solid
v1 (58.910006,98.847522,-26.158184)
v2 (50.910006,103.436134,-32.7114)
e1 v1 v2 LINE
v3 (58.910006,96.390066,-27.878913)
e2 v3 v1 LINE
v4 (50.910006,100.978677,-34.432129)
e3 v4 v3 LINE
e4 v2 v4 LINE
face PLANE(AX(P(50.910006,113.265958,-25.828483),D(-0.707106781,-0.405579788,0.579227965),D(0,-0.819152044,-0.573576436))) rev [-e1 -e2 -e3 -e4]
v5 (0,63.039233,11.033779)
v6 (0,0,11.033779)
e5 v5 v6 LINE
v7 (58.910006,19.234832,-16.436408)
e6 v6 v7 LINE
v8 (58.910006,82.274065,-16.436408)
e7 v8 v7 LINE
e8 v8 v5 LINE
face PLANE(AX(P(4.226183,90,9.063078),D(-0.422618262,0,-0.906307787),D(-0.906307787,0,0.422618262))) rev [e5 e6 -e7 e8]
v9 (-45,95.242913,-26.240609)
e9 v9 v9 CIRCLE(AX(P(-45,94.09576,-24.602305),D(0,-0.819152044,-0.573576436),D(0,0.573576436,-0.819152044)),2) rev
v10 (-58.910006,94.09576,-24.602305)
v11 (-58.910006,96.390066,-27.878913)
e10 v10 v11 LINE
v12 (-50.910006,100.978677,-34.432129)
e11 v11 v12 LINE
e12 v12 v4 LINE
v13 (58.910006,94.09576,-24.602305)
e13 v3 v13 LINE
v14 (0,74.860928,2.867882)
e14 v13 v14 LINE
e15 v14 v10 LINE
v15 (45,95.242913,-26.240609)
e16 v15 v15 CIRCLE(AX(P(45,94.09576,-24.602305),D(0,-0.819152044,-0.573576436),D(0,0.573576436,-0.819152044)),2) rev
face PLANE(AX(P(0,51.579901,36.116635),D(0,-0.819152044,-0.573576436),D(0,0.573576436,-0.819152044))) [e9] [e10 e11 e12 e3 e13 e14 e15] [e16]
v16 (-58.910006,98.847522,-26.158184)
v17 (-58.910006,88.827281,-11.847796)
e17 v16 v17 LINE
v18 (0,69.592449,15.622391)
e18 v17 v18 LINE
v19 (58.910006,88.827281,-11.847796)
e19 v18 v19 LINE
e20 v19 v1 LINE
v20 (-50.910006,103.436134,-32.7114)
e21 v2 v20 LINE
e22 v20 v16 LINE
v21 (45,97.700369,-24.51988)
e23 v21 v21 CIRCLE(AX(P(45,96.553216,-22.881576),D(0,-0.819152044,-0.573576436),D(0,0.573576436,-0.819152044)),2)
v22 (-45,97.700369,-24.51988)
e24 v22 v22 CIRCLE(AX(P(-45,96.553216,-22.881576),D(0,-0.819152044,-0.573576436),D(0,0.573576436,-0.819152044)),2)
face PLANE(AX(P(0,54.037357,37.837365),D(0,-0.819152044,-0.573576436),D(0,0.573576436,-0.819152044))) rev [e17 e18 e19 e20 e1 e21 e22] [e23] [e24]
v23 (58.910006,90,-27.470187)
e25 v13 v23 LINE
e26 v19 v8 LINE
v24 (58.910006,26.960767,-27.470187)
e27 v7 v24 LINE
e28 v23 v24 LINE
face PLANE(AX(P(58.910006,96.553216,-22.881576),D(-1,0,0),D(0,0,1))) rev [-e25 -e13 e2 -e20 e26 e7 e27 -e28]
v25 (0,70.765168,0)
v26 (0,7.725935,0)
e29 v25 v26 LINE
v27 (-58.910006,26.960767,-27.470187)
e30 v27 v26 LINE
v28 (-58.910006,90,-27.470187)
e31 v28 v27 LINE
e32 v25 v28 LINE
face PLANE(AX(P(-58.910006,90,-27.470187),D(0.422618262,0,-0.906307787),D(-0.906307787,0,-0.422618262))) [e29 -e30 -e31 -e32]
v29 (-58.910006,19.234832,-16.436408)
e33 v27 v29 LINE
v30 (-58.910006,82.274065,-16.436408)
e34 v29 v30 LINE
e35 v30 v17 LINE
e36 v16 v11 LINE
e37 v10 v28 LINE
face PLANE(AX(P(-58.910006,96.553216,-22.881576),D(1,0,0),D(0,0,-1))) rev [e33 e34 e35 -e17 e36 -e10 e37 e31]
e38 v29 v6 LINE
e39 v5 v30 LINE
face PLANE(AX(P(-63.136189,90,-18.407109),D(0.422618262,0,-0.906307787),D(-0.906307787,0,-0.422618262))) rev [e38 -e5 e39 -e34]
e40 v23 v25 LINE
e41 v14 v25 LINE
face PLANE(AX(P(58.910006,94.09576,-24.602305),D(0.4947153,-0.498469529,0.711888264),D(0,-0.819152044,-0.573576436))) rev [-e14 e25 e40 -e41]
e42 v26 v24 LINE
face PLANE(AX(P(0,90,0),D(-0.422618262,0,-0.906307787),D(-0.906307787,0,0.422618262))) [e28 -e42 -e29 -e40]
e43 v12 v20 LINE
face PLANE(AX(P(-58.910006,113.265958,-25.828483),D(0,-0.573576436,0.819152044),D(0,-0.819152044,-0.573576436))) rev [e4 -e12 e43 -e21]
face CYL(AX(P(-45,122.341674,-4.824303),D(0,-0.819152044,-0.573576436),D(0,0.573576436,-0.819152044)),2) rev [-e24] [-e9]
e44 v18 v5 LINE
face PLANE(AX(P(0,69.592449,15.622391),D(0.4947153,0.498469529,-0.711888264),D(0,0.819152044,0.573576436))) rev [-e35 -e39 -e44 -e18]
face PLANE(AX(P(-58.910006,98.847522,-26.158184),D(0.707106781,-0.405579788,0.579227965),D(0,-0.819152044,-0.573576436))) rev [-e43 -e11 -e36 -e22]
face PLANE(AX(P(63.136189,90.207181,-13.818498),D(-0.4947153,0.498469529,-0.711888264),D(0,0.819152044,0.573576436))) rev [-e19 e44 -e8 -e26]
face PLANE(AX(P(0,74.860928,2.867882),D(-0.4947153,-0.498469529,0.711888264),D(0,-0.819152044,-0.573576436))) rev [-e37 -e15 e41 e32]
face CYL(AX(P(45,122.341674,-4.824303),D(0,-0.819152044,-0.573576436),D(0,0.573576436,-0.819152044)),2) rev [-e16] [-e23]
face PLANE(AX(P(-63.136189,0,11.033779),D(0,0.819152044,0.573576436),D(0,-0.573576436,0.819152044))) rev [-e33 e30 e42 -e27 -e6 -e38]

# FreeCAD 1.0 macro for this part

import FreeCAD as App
import Part
import Sketcher
Q = App.Units.Quantity


def edges_at(feature, points):
    """Names of the edges that pass closest to the given points."""
    edges = feature.Shape.Edges
    near = lambda p: min(range(len(edges)), key=lambda i: edges[i].distToShape(Part.Vertex(*p))[0])
    return sorted({f"Edge{near(p) + 1}" for p in points})


def add_polygon(sketch, points):
    """Adds a closed chain of lines whose ends are joined by coincident constraints."""
    first, n = sketch.GeometryCount, len(points)
    for a, b in zip(points, points[1:] + points[:1]):
        sketch.addGeometry(Part.LineSegment(App.Vector(*a, 0), App.Vector(*b, 0)), False)
    for i in range(n):
        sketch.addConstraint(Sketcher.Constraint("Coincident", first + i, 2, first + (i + 1) % n, 1))

doc = App.newDocument("Part")
body = doc.addObject("PartDesign::Body", "Body")

sketch1 = body.newObject("Sketcher::SketchObject", "Sketch")
sketch1.AttachmentSupport = (doc.getObject("XZ_Plane"), [""])
sketch1.MapMode = "FlatFace"
add_polygon(sketch1, [(0, 0), (-59, -27), (-63, -18), (0, 11), (63, -18), (59, -27)])
sketch1.addConstraint([
    Sketcher.Constraint("Coincident", 5, 2, -1, 1),
    Sketcher.Constraint("Symmetric", 1, 2, 3, 2, -2),
    Sketcher.Constraint("Symmetric", 0, 2, 4, 2, -2),
    Sketcher.Constraint("PointOnObject", 2, 2, -2),
    Sketcher.Constraint("Perpendicular", 0, 1),
    Sketcher.Constraint("Perpendicular", 1, 2),
    Sketcher.Constraint("Angle", 0, Q("-155 deg")),
    Sketcher.Constraint("Distance", 0, 65.0),
    Sketcher.Constraint("Distance", 1, 10.0),
])
pad1 = body.newObject("PartDesign::Pad", "Pad")
pad1.Profile = sketch1
pad1.Length = 90
pad1.Reversed = True

sketch2 = body.newObject("Sketcher::SketchObject", "Sketch001")
sketch2.AttachmentSupport = (doc.getObject("YZ_Plane"), [""])
sketch2.MapMode = "FlatFace"
add_polygon(sketch2, [(27, -27), (0, 11), (0, -27)])
add_polygon(sketch2, [(63, 11), (90, -27), (90, 11)])
sketch2.addConstraint([
    Sketcher.Constraint("Vertical", 1),
    Sketcher.Constraint("Horizontal", 2),
    Sketcher.Constraint("Vertical", 4),
    Sketcher.Constraint("Horizontal", 5),
    Sketcher.Constraint("PointOnObject", 0, 2, -2),
    Sketcher.Constraint("Parallel", 0, 3),
    Sketcher.Constraint("Horizontal", 2, 2, 3, 2),
    Sketcher.Constraint("Horizontal", 0, 2, 4, 2),
    Sketcher.Constraint("Angle", 0, Q("125 deg")),
    Sketcher.Constraint("DistanceX", -1, 1, 3, 2, 90.0),
    Sketcher.Constraint("DistanceX", 2, 1, 2, 2, 26.960767),
    Sketcher.Constraint("DistanceY", -1, 1, 0, 2, 11.033779),
])
pocket1 = body.newObject("PartDesign::Pocket", "Pocket")
pocket1.Profile = sketch2
pocket1.Type = "ThroughAll"
pocket1.Midplane = True

sketch3 = body.newObject("Sketcher::SketchObject", "Sketch002")
sketch3.Placement = App.Placement(App.Vector(0, 47.48414, 33.248753), App.Rotation(App.Vector(1, 0, 0), App.Vector(0, 0.573576436, -0.819152044), App.Vector(0, 0.819152044, 0.573576436), "ZXY"))
add_polygon(sketch3, [(63, 63), (59, 74), (59, 94), (-59, 94), (-59, 74), (-63, 63), (0, 27)])
sketch3.addConstraint([
    Sketcher.Constraint("Vertical", 1),
    Sketcher.Constraint("Horizontal", 2),
    Sketcher.Constraint("Vertical", 3),
    Sketcher.Constraint("Symmetric", 0, 2, 3, 2, -2),
    Sketcher.Constraint("Symmetric", 4, 2, 6, 2, -2),
    Sketcher.Constraint("PointOnObject", 5, 2, -2),
    Sketcher.Constraint("DistanceY", 1, 1, 1, 2, 20.0),
    Sketcher.Constraint("DistanceX", 2, 2, 2, 1, 117.820012),
    Sketcher.Constraint("DistanceY", -1, 1, 0, 2, 74.124139),
    Sketcher.Constraint("DistanceX", 4, 2, -1, 1, 63.136189),
    Sketcher.Constraint("DistanceY", 5, 2, 4, 2, 35.940688),
    Sketcher.Constraint("Distance", 0, 11.843655),
])
pad2 = body.newObject("PartDesign::Pad", "Pad001")
pad2.Profile = sketch3
pad2.Length = 8

sketch4 = body.newObject("Sketcher::SketchObject", "Sketch003")
sketch4.Placement = App.Placement(App.Vector(0, 54.037357, 37.837365), App.Rotation(App.Vector(1, 0, 0), App.Vector(0, 0.573576436, -0.819152044), App.Vector(0, 0.819152044, 0.573576436), "ZXY"))
add_polygon(sketch4, [(-82, 117), (-82, -31), (82, -31), (82, 117)])
add_polygon(sketch4, [(59, -13), (-59, -13), (-59, 94), (59, 94)])
sketch4.addConstraint([
    Sketcher.Constraint("Vertical", 0),
    Sketcher.Constraint("Horizontal", 1),
    Sketcher.Constraint("Vertical", 2),
    Sketcher.Constraint("Horizontal", 3),
    Sketcher.Constraint("Horizontal", 4),
    Sketcher.Constraint("Vertical", 5),
    Sketcher.Constraint("Horizontal", 6),
    Sketcher.Constraint("Vertical", 7),
    Sketcher.Constraint("DistanceY", 0, 2, 0, 1, 147.98),
    Sketcher.Constraint("DistanceX", 1, 1, 1, 2, 163.572),
    Sketcher.Constraint("DistanceX", 0, 2, -1, 1, 81.786),
    Sketcher.Constraint("DistanceY", 0, 2, -1, 1, 31.447),
    Sketcher.Constraint("DistanceY", 5, 1, 5, 2, 106.962979),
    Sketcher.Constraint("DistanceX", 4, 2, 4, 1, 117.820012),
    Sketcher.Constraint("DistanceY", 4, 2, -1, 1, 12.83884),
    Sketcher.Constraint("DistanceX", 4, 2, -1, 1, 58.910006),
])
pocket2 = body.newObject("PartDesign::Pocket", "Pocket001")
pocket2.Profile = sketch4
pocket2.Type = "ThroughAll"

sketch5 = body.newObject("Sketcher::SketchObject", "Sketch004")
sketch5.Placement = App.Placement(App.Vector(0, 47.48414, 33.248753), App.Rotation(App.Vector(1, 0, 0), App.Vector(0, -0.573576436, 0.819152044), App.Vector(0, -0.819152044, -0.573576436), "ZXY"))
sketch5.addGeometry([
    Part.Circle(App.Vector(-45, -74.1, 0), App.Vector(0, 0, 1), 2),
    Part.Circle(App.Vector(45, -74.1, 0), App.Vector(0, 0, 1), 2),
], False)
sketch5.addConstraint([
    Sketcher.Constraint("Equal", 0, 1),
    Sketcher.Constraint("Symmetric", 0, 3, 1, 3, -2),
    Sketcher.Constraint("Diameter", 0, 4.0),
    Sketcher.Constraint("DistanceX", 0, 3, -1, 1, 45.0),
    Sketcher.Constraint("DistanceY", 0, 3, -1, 1, 74.124139),
])
pocket3 = body.newObject("PartDesign::Pocket", "Pocket002")
pocket3.Profile = sketch5
pocket3.Type = "ThroughAll"

sketch6 = body.newObject("Sketcher::SketchObject", "Sketch005")
sketch6.Placement = App.Placement(App.Vector(0, 47.48414, 33.248753), App.Rotation(App.Vector(1, 0, 0), App.Vector(0, -0.573576436, 0.819152044), App.Vector(0, -0.819152044, -0.573576436), "ZXY"))
add_polygon(sketch6, [(-59, -86), (-59, -94), (59, -94), (59, -86)])
sketch6.addConstraint([
    Sketcher.Constraint("Vertical", 0),
    Sketcher.Constraint("Horizontal", 1),
    Sketcher.Constraint("Vertical", 2),
    Sketcher.Constraint("Horizontal", 3),
    Sketcher.Constraint("DistanceY", 0, 2, 0, 1, 8.0),
    Sketcher.Constraint("DistanceX", 1, 1, 1, 2, 117.820012),
    Sketcher.Constraint("DistanceY", 0, 2, -1, 1, 94.124139),
    Sketcher.Constraint("DistanceX", 0, 2, -1, 1, 58.910006),
])
pocket4 = body.newObject("PartDesign::Pocket", "Pocket003")
pocket4.Profile = sketch6
pocket4.Length = 20

sketch7 = body.newObject("Sketcher::SketchObject", "Sketch006")
sketch7.Placement = App.Placement(App.Vector(0, 47.48414, 33.248753), App.Rotation(App.Vector(1, 0, 0), App.Vector(0, -0.573576436, 0.819152044), App.Vector(0, -0.819152044, -0.573576436), "ZXY"))
add_polygon(sketch7, [(-59, -86), (59, -86), (59, -74), (0, -41), (-59, -74)])
sketch7.addConstraint([
    Sketcher.Constraint("Horizontal", 0),
    Sketcher.Constraint("Vertical", 1),
    Sketcher.Constraint("Vertical", 4),
    Sketcher.Constraint("Symmetric", 1, 2, 3, 2, -2),
    Sketcher.Constraint("PointOnObject", 2, 2, -2),
    Sketcher.Constraint("DistanceY", 1, 1, 1, 2, 12.0),
    Sketcher.Constraint("DistanceX", 0, 1, 0, 2, 117.820012),
    Sketcher.Constraint("DistanceY", 0, 2, -1, 1, 86.124139),
    Sketcher.Constraint("Distance", 2, 67.786273),
])
pocket5 = body.newObject("PartDesign::Pocket", "Pocket004")
pocket5.Profile = sketch7
pocket5.Length = 5
doc.recompute()

chamfer = body.newObject("PartDesign::Chamfer", "Chamfer")
chamfer.Base = (pocket5, edges_at(pocket5, [(-58.91, 102.207, -33.572), (58.91, 102.207, -33.572)]))
chamfer.Size = 8

doc.recompute()
